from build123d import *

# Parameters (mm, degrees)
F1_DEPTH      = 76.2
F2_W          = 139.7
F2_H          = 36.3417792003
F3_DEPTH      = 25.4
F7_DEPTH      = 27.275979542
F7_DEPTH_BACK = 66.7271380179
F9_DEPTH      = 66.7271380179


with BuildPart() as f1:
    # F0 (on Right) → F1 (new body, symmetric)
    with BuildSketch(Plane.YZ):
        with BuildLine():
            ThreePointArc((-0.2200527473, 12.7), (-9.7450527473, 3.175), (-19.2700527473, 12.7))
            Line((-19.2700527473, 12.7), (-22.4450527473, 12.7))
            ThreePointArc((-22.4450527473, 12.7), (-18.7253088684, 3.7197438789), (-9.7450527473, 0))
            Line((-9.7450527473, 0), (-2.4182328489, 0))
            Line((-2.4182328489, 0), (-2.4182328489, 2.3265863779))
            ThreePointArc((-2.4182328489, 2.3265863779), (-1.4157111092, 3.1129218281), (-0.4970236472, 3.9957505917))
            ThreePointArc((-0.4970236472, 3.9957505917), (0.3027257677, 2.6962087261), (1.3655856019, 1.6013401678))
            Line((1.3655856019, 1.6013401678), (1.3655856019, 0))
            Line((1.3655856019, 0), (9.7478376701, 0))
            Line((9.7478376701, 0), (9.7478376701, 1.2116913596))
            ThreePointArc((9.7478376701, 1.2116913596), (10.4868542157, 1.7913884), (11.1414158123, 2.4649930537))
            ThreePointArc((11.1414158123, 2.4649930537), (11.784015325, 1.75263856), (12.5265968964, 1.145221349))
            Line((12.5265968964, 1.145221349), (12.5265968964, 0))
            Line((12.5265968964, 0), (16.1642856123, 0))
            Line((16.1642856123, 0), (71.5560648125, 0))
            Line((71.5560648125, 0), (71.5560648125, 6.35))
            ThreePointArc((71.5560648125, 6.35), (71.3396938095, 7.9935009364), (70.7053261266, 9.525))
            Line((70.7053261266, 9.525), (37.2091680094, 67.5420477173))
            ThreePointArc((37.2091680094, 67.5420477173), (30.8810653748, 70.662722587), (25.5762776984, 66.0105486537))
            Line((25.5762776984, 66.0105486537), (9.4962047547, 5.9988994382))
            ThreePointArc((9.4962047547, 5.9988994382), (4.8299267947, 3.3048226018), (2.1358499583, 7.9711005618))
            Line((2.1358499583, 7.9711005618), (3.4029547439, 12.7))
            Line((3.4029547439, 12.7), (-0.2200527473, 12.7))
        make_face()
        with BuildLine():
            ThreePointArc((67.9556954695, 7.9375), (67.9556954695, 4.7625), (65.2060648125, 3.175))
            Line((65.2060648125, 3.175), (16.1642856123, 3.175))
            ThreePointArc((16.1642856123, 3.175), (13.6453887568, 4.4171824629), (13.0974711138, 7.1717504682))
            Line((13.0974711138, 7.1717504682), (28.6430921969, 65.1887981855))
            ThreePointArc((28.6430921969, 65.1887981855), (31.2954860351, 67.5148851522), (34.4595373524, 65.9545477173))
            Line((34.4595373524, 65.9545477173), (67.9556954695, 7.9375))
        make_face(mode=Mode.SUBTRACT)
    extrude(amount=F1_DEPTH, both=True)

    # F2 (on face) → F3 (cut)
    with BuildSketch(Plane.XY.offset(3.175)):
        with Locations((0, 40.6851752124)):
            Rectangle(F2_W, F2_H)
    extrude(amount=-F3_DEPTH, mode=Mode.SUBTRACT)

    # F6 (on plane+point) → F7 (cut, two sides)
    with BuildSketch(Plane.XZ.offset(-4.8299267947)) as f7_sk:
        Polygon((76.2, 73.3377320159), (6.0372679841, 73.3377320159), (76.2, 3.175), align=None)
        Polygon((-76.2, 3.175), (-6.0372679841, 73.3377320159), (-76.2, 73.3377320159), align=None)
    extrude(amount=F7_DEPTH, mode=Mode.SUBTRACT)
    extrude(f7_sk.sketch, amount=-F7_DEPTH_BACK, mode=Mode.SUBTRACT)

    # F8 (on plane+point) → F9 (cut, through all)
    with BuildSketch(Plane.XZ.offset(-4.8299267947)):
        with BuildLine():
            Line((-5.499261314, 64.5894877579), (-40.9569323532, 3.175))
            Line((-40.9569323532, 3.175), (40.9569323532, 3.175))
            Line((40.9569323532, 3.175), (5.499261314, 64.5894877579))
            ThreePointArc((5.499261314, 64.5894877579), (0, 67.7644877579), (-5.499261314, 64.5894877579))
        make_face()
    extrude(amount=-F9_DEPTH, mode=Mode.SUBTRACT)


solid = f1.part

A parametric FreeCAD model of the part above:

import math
import FreeCAD as App
import Part
import Sketcher
Q = App.Units.Quantity


def add_polygon(sketch, points):
    """Adds a closed chain of lines whose ends are joined by coincident constraints."""
    first, n = sketch.GeometryCount, len(points)
    for a, b in zip(points, points[1:] + points[:1]):
        sketch.addGeometry(Part.LineSegment(App.Vector(*a, 0), App.Vector(*b, 0)), False)
    for i in range(n):
        sketch.addConstraint(Sketcher.Constraint("Coincident", first + i, 2, first + (i + 1) % n, 1))

doc = App.newDocument("Part")
body = doc.addObject("PartDesign::Body", "Body")

# Sketch on YZ plane
sketch1 = body.newObject("Sketcher::SketchObject", "Sketch")
sketch1.AttachmentSupport = (doc.getObject("YZ_Plane"), [""])
sketch1.MapMode = "FlatFace"
sketch1.addGeometry(Part.ArcOfCircle(Part.Circle(App.Vector(-9.745053, 12.7, 0), App.Vector(0, 0, 1), 9.525), math.radians(180), math.radians(360)), False)
sketch1.addGeometry(Part.LineSegment(App.Vector(-19.270053, 12.7, 0), App.Vector(-22.445053, 12.7, 0)), False)
sketch1.addGeometry(Part.ArcOfCircle(Part.Circle(App.Vector(-9.745053, 12.7, 0), App.Vector(0, 0, 1), 12.7), math.radians(180), math.radians(270)), False)
sketch1.addGeometry(Part.LineSegment(App.Vector(-9.745053, 0, 0), App.Vector(-2.418233, 0, 0)), False)
sketch1.addGeometry(Part.LineSegment(App.Vector(-2.418233, 0, 0), App.Vector(-2.418233, 2.326586, 0)), False)
sketch1.addGeometry(Part.ArcOfCircle(Part.Circle(App.Vector(-9.745053, 12.7, 0), App.Vector(0, 0, 1), 12.7), math.radians(-54.766152), math.radians(-43.265025)), False)
sketch1.addGeometry(Part.ArcOfCircle(Part.Circle(App.Vector(5.816027, 6.985, 0), App.Vector(0, 0, 1), 6.985), math.radians(-154.662298), math.radians(-129.579086)), False)
sketch1.addGeometry(Part.LineSegment(App.Vector(1.365586, 1.60134, 0), App.Vector(1.365586, 0, 0)), False)
sketch1.addGeometry(Part.LineSegment(App.Vector(1.365586, 0, 0), App.Vector(9.747838, 0, 0)), False)
sketch1.addGeometry(Part.LineSegment(App.Vector(9.747838, 0, 0), App.Vector(9.747838, 1.211691, 0)), False)
sketch1.addGeometry(Part.ArcOfCircle(Part.Circle(App.Vector(5.816027, 6.985, 0), App.Vector(0, 0, 1), 6.985), math.radians(-55.743868), math.radians(-40.323454)), False)
sketch1.addGeometry(Part.ArcOfCircle(Part.Circle(App.Vector(16.164286, 6.35, 0), App.Vector(0, 0, 1), 6.35), math.radians(-142.279353), math.radians(-124.950209)), False)
sketch1.addGeometry(Part.LineSegment(App.Vector(12.526597, 1.145221, 0), App.Vector(12.526597, 0, 0)), False)
sketch1.addGeometry(Part.LineSegment(App.Vector(12.526597, 0, 0), App.Vector(71.556065, 0, 0)), False)
sketch1.addGeometry(Part.LineSegment(App.Vector(71.556065, 0, 0), App.Vector(71.556065, 6.35, 0)), False)
sketch1.addGeometry(Part.ArcOfCircle(Part.Circle(App.Vector(65.206065, 6.35, 0), App.Vector(0, 0, 1), 6.35), math.radians(0), math.radians(30)), False)
sketch1.addGeometry(Part.LineSegment(App.Vector(70.705326, 9.525, 0), App.Vector(37.209168, 67.542048, 0)), False)
sketch1.addGeometry(Part.ArcOfCircle(Part.Circle(App.Vector(31.709907, 64.367048, 0), App.Vector(0, 0, 1), 6.35), math.radians(30), math.radians(165)), False)
sketch1.addGeometry(Part.LineSegment(App.Vector(25.576278, 66.010549, 0), App.Vector(9.496205, 5.998899, 0)), False)
sketch1.addGeometry(Part.ArcOfCircle(Part.Circle(App.Vector(5.816027, 6.985, 0), App.Vector(0, 0, 1), 3.81), math.radians(165), math.radians(345)), False)
sketch1.addGeometry(Part.LineSegment(App.Vector(2.13585, 7.971101, 0), App.Vector(3.402955, 12.7, 0)), False)
sketch1.addGeometry(Part.LineSegment(App.Vector(3.402955, 12.7, 0), App.Vector(-0.220053, 12.7, 0)), False)
sketch1.addGeometry(Part.LineSegment(App.Vector(34.459537, 65.954548, 0), App.Vector(67.955695, 7.9375, 0)), False)
sketch1.addGeometry(Part.ArcOfCircle(Part.Circle(App.Vector(65.206065, 6.35, 0), App.Vector(0, 0, 1), 3.175), math.radians(-90), math.radians(30)), False)
sketch1.addGeometry(Part.LineSegment(App.Vector(65.206065, 3.175, 0), App.Vector(16.164286, 3.175, 0)), False)
sketch1.addGeometry(Part.ArcOfCircle(Part.Circle(App.Vector(16.164286, 6.35, 0), App.Vector(0, 0, 1), 3.175), math.radians(165), math.radians(270)), False)
sketch1.addGeometry(Part.LineSegment(App.Vector(13.097471, 7.17175, 0), App.Vector(28.643092, 65.188798, 0)), False)
sketch1.addGeometry(Part.ArcOfCircle(Part.Circle(App.Vector(31.709907, 64.367048, 0), App.Vector(0, 0, 1), 3.175), math.radians(30), math.radians(165)), False)
sketch1.addConstraint(Sketcher.Constraint("Coincident", 0, 1, 1, 1))
sketch1.addConstraint(Sketcher.Constraint("Coincident", 1, 2, 2, 1))
sketch1.addConstraint(Sketcher.Constraint("Tangent", 2, 2, 3, 1))
sketch1.addConstraint(Sketcher.Constraint("Coincident", 3, 2, 4, 1))
sketch1.addConstraint(Sketcher.Constraint("Coincident", 4, 2, 5, 1))
sketch1.addConstraint(Sketcher.Constraint("Coincident", 5, 2, 6, 1))
sketch1.addConstraint(Sketcher.Constraint("Coincident", 6, 2, 7, 1))
sketch1.addConstraint(Sketcher.Constraint("Coincident", 7, 2, 8, 1))
sketch1.addConstraint(Sketcher.Constraint("Coincident", 8, 2, 9, 1))
sketch1.addConstraint(Sketcher.Constraint("Coincident", 9, 2, 10, 1))
sketch1.addConstraint(Sketcher.Constraint("Coincident", 10, 2, 11, 1))
sketch1.addConstraint(Sketcher.Constraint("Coincident", 11, 2, 12, 1))
sketch1.addConstraint(Sketcher.Constraint("Coincident", 12, 2, 13, 1))
sketch1.addConstraint(Sketcher.Constraint("Coincident", 13, 2, 14, 1))
sketch1.addConstraint(Sketcher.Constraint("Tangent", 14, 2, 15, 1))
sketch1.addConstraint(Sketcher.Constraint("Tangent", 15, 2, 16, 1))
sketch1.addConstraint(Sketcher.Constraint("Tangent", 16, 2, 17, 1))
sketch1.addConstraint(Sketcher.Constraint("Tangent", 17, 2, 18, 1))
sketch1.addConstraint(Sketcher.Constraint("Tangent", 18, 2, 19, 2))
sketch1.addConstraint(Sketcher.Constraint("Tangent", 19, 1, 20, 1))
sketch1.addConstraint(Sketcher.Constraint("Coincident", 20, 2, 21, 1))
sketch1.addConstraint(Sketcher.Constraint("Coincident", 21, 2, 0, 2))
sketch1.addConstraint(Sketcher.Constraint("Tangent", 22, 2, 23, 2))
sketch1.addConstraint(Sketcher.Constraint("Tangent", 23, 1, 24, 1))
sketch1.addConstraint(Sketcher.Constraint("Tangent", 24, 2, 25, 2))
sketch1.addConstraint(Sketcher.Constraint("Tangent", 25, 1, 26, 1))
sketch1.addConstraint(Sketcher.Constraint("Tangent", 26, 2, 27, 2))
sketch1.addConstraint(Sketcher.Constraint("Tangent", 27, 1, 22, 1))
sketch1.addConstraint(Sketcher.Constraint("Horizontal", 1))
sketch1.addConstraint(Sketcher.Constraint("Horizontal", 3))
sketch1.addConstraint(Sketcher.Constraint("Vertical", 4))
sketch1.addConstraint(Sketcher.Constraint("Vertical", 7))
sketch1.addConstraint(Sketcher.Constraint("Horizontal", 8))
sketch1.addConstraint(Sketcher.Constraint("Vertical", 9))
sketch1.addConstraint(Sketcher.Constraint("Vertical", 12))
sketch1.addConstraint(Sketcher.Constraint("Horizontal", 13))
sketch1.addConstraint(Sketcher.Constraint("Vertical", 14))
sketch1.addConstraint(Sketcher.Constraint("Horizontal", 21))
sketch1.addConstraint(Sketcher.Constraint("Horizontal", 24))
sketch1.addConstraint(Sketcher.Constraint("Coincident", 2, 3, 0, 3))
sketch1.addConstraint(Sketcher.Constraint("Coincident", 5, 3, 0, 3))
sketch1.addConstraint(Sketcher.Constraint("Coincident", 10, 3, 6, 3))
sketch1.addConstraint(Sketcher.Constraint("Coincident", 19, 3, 6, 3))
sketch1.addConstraint(Sketcher.Constraint("Coincident", 23, 3, 15, 3))
sketch1.addConstraint(Sketcher.Constraint("Coincident", 25, 3, 11, 3))
sketch1.addConstraint(Sketcher.Constraint("Coincident", 27, 3, 17, 3))
sketch1.addConstraint(Sketcher.Constraint("Equal", 2, 5))
sketch1.addConstraint(Sketcher.Constraint("Equal", 6, 10))
sketch1.addConstraint(Sketcher.Constraint("Equal", 11, 15))
sketch1.addConstraint(Sketcher.Constraint("Equal", 15, 17))
sketch1.addConstraint(Sketcher.Constraint("Equal", 23, 25))
sketch1.addConstraint(Sketcher.Constraint("Equal", 25, 27))
sketch1.addConstraint(Sketcher.Constraint("PointOnObject", 2, 2, -1))
sketch1.addConstraint(Sketcher.Constraint("PointOnObject", 7, 2, -1))
sketch1.addConstraint(Sketcher.Constraint("PointOnObject", 12, 2, -1))
sketch1.addConstraint(Sketcher.Constraint("Parallel", 18, 20))
sketch1.addConstraint(Sketcher.Constraint("Parallel", 20, 26))
sketch1.addConstraint(Sketcher.Constraint("Horizontal", 5, 3, 0, 1))
sketch1.addConstraint(Sketcher.Constraint("Horizontal", 1, 2, 20, 2))
sketch1.addConstraint(Sketcher.Constraint("Radius", 2, Q("0.5 in")))
sketch1.addConstraint(Sketcher.Constraint("Radius", 11, Q("0.25 in")))
sketch1.addConstraint(Sketcher.Constraint("Radius", 19, Q("0.15 in")))
sketch1.addConstraint(Sketcher.Constraint("Angle", 16, Q("120 deg")))
sketch1.addConstraint(Sketcher.Constraint("Angle", 18, Q("-105 deg")))
sketch1.addConstraint(Sketcher.Constraint("Radius", 0, Q("0.375 in")))
sketch1.addConstraint(Sketcher.Constraint("Radius", 6, Q("0.275 in")))
sketch1.addConstraint(Sketcher.Constraint("Radius", 23, Q("0.125 in")))
sketch1.addConstraint(Sketcher.Constraint("DistanceY", 14, 1, 14, 2, Q("0.25 in")))
sketch1.addConstraint(Sketcher.Constraint("DistanceY", -1, 1, 6, 3, Q("0.275 in")))
sketch1.addConstraint(Sketcher.Constraint("DistanceX", 9, 2, 11, 2, Q("0.1094 in")))
sketch1.addConstraint(Sketcher.Constraint("DistanceX", 3, 1, 3, 2, 7.32682))
sketch1.addConstraint(Sketcher.Constraint("DistanceX", 24, 2, 24, 1, 49.041779))
sketch1.addConstraint(Sketcher.Constraint("DistanceY", 7, 2, 7, 1, 1.60134))
sketch1.addConstraint(Sketcher.Constraint("DistanceY", 9, 1, 9, 2, 1.211691))
sketch1.addConstraint(Sketcher.Constraint("DistanceX", 21, 2, 21, 1, 3.623007))
sketch1.addConstraint(Sketcher.Constraint("DistanceX", -1, 1, 16, 2, 37.209168))
pad1 = body.newObject("PartDesign::Pad", "Pad")
pad1.Profile = sketch1
pad1.Length = Q("6 in")
pad1.Midplane = True

# Sketch on XY plane
sketch2 = body.newObject("Sketcher::SketchObject", "Sketch001")
sketch2.AttachmentSupport = (doc.getObject("XY_Plane"), [""])
sketch2.MapMode = "FlatFace"
sketch2.AttachmentOffset = App.Placement(App.Vector(0, 0, 0.125 * 25.4), App.Rotation())
add_polygon(sketch2, [(-69.85, 58.856065), (-69.85, 22.514286), (69.85, 22.514286), (69.85, 58.856065)])  # lines 0-3
sketch2.addConstraint(Sketcher.Constraint("Vertical", 0))
sketch2.addConstraint(Sketcher.Constraint("Horizontal", 1))
sketch2.addConstraint(Sketcher.Constraint("Vertical", 2))
sketch2.addConstraint(Sketcher.Constraint("Horizontal", 3))
sketch2.addConstraint(Sketcher.Constraint("DistanceX", 1, 1, 1, 2, Q("5.5 in")))
sketch2.addConstraint(Sketcher.Constraint("DistanceX", 0, 2, -1, 1, Q("2.75 in")))
sketch2.addConstraint(Sketcher.Constraint("DistanceY", 0, 2, 0, 1, 36.341779))
sketch2.addConstraint(Sketcher.Constraint("DistanceY", -1, 1, 0, 2, 22.514286))
pocket1 = body.newObject("PartDesign::Pocket", "Pocket")
pocket1.Profile = sketch2
pocket1.Length = Q("1 in")

# Sketch on XZ plane
sketch3 = body.newObject("Sketcher::SketchObject", "Sketch002")
sketch3.AttachmentSupport = (doc.getObject("XZ_Plane"), [""])
sketch3.MapMode = "FlatFace"
sketch3.AttachmentOffset = App.Placement(App.Vector(0, 0, -4.829927), App.Rotation())
add_polygon(sketch3, [(76.2, 73.337732), (6.037268, 73.337732), (76.2, 3.175)])  # lines 0-2
add_polygon(sketch3, [(-76.2, 3.175), (-6.037268, 73.337732), (-76.2, 73.337732)])  # lines 3-5
sketch3.addConstraint(Sketcher.Constraint("Horizontal", 0))
sketch3.addConstraint(Sketcher.Constraint("Vertical", 2))
sketch3.addConstraint(Sketcher.Constraint("Horizontal", 4))
sketch3.addConstraint(Sketcher.Constraint("Vertical", 5))
sketch3.addConstraint(Sketcher.Constraint("Symmetric", 0, 2, 3, 2, -2))
sketch3.addConstraint(Sketcher.Constraint("Symmetric", 1, 2, 5, 2, -2))
sketch3.addConstraint(Sketcher.Constraint("Perpendicular", 1, 3))
sketch3.addConstraint(Sketcher.Constraint("DistanceX", -1, 1, 1, 2, Q("3 in")))
sketch3.addConstraint(Sketcher.Constraint("DistanceY", -1, 1, 1, 2, Q("0.125 in")))
sketch3.addConstraint(Sketcher.Constraint("DistanceX", 0, 2, 0, 1, 70.162732))
pocket2 = body.newObject("PartDesign::Pocket", "Pocket001")
pocket2.Profile = sketch3
pocket2.Type = "ThroughAll"
pocket2.Midplane = True

# Sketch on XZ plane
sketch4 = body.newObject("Sketcher::SketchObject", "Sketch003")
sketch4.AttachmentSupport = (doc.getObject("XZ_Plane"), [""])
sketch4.MapMode = "FlatFace"
sketch4.AttachmentOffset = App.Placement(App.Vector(0, 0, -4.829927), App.Rotation())
sketch4.addGeometry(Part.LineSegment(App.Vector(-5.499261, 64.589488, 0), App.Vector(-40.956932, 3.175, 0)), False)
sketch4.addGeometry(Part.LineSegment(App.Vector(-40.956932, 3.175, 0), App.Vector(40.956932, 3.175, 0)), False)
sketch4.addGeometry(Part.LineSegment(App.Vector(40.956932, 3.175, 0), App.Vector(5.499261, 64.589488, 0)), False)
sketch4.addGeometry(Part.ArcOfCircle(Part.Circle(App.Vector(0, 61.414488, 0), App.Vector(0, 0, 1), 6.35), math.radians(30), math.radians(150)), False)
sketch4.addConstraint(Sketcher.Constraint("Coincident", 0, 2, 1, 1))
sketch4.addConstraint(Sketcher.Constraint("Coincident", 1, 2, 2, 1))
sketch4.addConstraint(Sketcher.Constraint("Tangent", 2, 2, 3, 1))
sketch4.addConstraint(Sketcher.Constraint("Tangent", 3, 2, 0, 1))
sketch4.addConstraint(Sketcher.Constraint("Horizontal", 1))
sketch4.addConstraint(Sketcher.Constraint("Symmetric", 2, 2, 3, 2, -2))
sketch4.addConstraint(Sketcher.Constraint("Radius", 3, Q("0.25 in")))
sketch4.addConstraint(Sketcher.Constraint("Angle", 0, Q("-120 deg")))
sketch4.addConstraint(Sketcher.Constraint("DistanceY", -1, 1, 0, 2, Q("0.125 in")))
sketch4.addConstraint(Sketcher.Constraint("DistanceX", 1, 1, 1, 2, 81.913865))
pocket3 = body.newObject("PartDesign::Pocket", "Pocket002")
pocket3.Profile = sketch4
pocket3.Type = "ThroughAll"

doc.recompute()
